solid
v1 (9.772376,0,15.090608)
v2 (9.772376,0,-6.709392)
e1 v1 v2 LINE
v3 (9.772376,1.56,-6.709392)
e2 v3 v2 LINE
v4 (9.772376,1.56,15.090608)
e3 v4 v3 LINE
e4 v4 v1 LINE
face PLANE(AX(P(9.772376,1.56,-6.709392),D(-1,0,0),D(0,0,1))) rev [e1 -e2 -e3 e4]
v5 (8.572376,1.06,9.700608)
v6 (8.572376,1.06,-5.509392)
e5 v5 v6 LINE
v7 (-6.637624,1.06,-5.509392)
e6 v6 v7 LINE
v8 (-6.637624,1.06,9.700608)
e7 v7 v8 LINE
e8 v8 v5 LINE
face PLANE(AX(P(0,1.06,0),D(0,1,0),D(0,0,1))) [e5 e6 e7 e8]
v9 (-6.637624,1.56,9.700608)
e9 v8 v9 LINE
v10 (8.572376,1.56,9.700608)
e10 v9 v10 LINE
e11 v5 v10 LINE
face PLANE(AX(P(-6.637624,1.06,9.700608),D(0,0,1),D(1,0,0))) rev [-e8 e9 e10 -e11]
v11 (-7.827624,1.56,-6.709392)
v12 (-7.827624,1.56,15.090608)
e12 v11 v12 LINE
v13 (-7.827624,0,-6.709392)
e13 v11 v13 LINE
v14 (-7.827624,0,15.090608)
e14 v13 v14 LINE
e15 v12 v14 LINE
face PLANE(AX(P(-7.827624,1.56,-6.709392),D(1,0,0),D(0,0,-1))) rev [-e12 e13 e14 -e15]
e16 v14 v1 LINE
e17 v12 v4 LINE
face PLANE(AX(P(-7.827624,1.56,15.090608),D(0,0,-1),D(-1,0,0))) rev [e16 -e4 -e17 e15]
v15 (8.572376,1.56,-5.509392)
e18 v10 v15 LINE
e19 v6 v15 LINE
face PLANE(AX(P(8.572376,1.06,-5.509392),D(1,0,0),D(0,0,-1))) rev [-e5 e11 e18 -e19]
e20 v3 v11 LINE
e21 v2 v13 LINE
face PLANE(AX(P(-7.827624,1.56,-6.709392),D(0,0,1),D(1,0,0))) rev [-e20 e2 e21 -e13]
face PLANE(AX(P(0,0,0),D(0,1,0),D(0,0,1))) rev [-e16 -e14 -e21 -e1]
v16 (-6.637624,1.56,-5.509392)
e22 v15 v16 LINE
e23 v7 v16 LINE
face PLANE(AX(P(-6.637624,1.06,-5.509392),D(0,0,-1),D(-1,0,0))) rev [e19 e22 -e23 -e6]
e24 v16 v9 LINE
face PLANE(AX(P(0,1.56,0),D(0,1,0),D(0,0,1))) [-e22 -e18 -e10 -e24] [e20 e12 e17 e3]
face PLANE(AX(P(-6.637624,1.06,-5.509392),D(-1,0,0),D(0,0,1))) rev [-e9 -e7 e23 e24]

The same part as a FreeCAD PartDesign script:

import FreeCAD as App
import Part
import Sketcher

V = App.Vector


def add_polygon(sketch, points):
    """Adds a closed chain of lines whose ends are joined by coincident constraints."""
    first, n = sketch.GeometryCount, len(points)
    for a, b in zip(points, points[1:] + points[:1]):
        sketch.addGeometry(Part.LineSegment(App.Vector(*a, 0), App.Vector(*b, 0)), False)
    for i in range(n):
        sketch.addConstraint(Sketcher.Constraint("Coincident", first + i, 2, first + (i + 1) % n, 1))

doc = App.newDocument("Part")
body = doc.addObject("PartDesign::Body", "Body")

sketch1 = doc.addObject("Sketcher::SketchObject", "Sketch")
body.addObject(sketch1)
sketch1.AttachmentSupport = (doc.XZ_Plane, [""])
sketch1.MapMode = "FlatFace"
add_polygon(sketch1, [(-8, -7), (-8, 15), (10, 15), (10, -7)])
sketch1.addConstraint([
    Sketcher.Constraint("Vertical", 0),
    Sketcher.Constraint("Horizontal", 1),
    Sketcher.Constraint("Vertical", 2),
    Sketcher.Constraint("Horizontal", 3),
    Sketcher.Constraint("DistanceX", 1, 1, 1, 2, 17.6),
    Sketcher.Constraint("DistanceY", 0, 1, 0, 2, 21.8),
    Sketcher.Constraint("DistanceX", 0, 2, -1, 1, 7.827624),
    Sketcher.Constraint("DistanceY", -1, 1, 0, 2, 15.090608),
])
pad1 = doc.addObject("PartDesign::Pad", "Pad")
body.addObject(pad1)
pad1.Profile = sketch1
pad1.Length = 1.56
pad1.Reversed = True

sketch2 = doc.addObject("Sketcher::SketchObject", "Sketch001")
body.addObject(sketch2)
sketch2.AttachmentSupport = (doc.XZ_Plane, [""])
sketch2.MapMode = "FlatFace"
sketch2.AttachmentOffset = App.Placement(V(0, 0, -1.56), App.Rotation())
add_polygon(sketch2, [(-7, -6), (-7, 10), (9, 10), (9, -6)])
sketch2.addConstraint([
    Sketcher.Constraint("Vertical", 0),
    Sketcher.Constraint("Horizontal", 1),
    Sketcher.Constraint("Vertical", 2),
    Sketcher.Constraint("Horizontal", 3),
    Sketcher.Constraint("Equal", 3, 0),
    Sketcher.Constraint("DistanceX", 1, 1, 1, 2, 15.21),
    Sketcher.Constraint("DistanceX", 0, 2, -1, 1, 6.637624),
    Sketcher.Constraint("DistanceY", -1, 1, 0, 2, 9.700608),
])
pocket1 = doc.addObject("PartDesign::Pocket", "Pocket")
body.addObject(pocket1)
pocket1.Profile = sketch2
pocket1.Length = 0.5
pocket1.Reversed = True

doc.recompute()
